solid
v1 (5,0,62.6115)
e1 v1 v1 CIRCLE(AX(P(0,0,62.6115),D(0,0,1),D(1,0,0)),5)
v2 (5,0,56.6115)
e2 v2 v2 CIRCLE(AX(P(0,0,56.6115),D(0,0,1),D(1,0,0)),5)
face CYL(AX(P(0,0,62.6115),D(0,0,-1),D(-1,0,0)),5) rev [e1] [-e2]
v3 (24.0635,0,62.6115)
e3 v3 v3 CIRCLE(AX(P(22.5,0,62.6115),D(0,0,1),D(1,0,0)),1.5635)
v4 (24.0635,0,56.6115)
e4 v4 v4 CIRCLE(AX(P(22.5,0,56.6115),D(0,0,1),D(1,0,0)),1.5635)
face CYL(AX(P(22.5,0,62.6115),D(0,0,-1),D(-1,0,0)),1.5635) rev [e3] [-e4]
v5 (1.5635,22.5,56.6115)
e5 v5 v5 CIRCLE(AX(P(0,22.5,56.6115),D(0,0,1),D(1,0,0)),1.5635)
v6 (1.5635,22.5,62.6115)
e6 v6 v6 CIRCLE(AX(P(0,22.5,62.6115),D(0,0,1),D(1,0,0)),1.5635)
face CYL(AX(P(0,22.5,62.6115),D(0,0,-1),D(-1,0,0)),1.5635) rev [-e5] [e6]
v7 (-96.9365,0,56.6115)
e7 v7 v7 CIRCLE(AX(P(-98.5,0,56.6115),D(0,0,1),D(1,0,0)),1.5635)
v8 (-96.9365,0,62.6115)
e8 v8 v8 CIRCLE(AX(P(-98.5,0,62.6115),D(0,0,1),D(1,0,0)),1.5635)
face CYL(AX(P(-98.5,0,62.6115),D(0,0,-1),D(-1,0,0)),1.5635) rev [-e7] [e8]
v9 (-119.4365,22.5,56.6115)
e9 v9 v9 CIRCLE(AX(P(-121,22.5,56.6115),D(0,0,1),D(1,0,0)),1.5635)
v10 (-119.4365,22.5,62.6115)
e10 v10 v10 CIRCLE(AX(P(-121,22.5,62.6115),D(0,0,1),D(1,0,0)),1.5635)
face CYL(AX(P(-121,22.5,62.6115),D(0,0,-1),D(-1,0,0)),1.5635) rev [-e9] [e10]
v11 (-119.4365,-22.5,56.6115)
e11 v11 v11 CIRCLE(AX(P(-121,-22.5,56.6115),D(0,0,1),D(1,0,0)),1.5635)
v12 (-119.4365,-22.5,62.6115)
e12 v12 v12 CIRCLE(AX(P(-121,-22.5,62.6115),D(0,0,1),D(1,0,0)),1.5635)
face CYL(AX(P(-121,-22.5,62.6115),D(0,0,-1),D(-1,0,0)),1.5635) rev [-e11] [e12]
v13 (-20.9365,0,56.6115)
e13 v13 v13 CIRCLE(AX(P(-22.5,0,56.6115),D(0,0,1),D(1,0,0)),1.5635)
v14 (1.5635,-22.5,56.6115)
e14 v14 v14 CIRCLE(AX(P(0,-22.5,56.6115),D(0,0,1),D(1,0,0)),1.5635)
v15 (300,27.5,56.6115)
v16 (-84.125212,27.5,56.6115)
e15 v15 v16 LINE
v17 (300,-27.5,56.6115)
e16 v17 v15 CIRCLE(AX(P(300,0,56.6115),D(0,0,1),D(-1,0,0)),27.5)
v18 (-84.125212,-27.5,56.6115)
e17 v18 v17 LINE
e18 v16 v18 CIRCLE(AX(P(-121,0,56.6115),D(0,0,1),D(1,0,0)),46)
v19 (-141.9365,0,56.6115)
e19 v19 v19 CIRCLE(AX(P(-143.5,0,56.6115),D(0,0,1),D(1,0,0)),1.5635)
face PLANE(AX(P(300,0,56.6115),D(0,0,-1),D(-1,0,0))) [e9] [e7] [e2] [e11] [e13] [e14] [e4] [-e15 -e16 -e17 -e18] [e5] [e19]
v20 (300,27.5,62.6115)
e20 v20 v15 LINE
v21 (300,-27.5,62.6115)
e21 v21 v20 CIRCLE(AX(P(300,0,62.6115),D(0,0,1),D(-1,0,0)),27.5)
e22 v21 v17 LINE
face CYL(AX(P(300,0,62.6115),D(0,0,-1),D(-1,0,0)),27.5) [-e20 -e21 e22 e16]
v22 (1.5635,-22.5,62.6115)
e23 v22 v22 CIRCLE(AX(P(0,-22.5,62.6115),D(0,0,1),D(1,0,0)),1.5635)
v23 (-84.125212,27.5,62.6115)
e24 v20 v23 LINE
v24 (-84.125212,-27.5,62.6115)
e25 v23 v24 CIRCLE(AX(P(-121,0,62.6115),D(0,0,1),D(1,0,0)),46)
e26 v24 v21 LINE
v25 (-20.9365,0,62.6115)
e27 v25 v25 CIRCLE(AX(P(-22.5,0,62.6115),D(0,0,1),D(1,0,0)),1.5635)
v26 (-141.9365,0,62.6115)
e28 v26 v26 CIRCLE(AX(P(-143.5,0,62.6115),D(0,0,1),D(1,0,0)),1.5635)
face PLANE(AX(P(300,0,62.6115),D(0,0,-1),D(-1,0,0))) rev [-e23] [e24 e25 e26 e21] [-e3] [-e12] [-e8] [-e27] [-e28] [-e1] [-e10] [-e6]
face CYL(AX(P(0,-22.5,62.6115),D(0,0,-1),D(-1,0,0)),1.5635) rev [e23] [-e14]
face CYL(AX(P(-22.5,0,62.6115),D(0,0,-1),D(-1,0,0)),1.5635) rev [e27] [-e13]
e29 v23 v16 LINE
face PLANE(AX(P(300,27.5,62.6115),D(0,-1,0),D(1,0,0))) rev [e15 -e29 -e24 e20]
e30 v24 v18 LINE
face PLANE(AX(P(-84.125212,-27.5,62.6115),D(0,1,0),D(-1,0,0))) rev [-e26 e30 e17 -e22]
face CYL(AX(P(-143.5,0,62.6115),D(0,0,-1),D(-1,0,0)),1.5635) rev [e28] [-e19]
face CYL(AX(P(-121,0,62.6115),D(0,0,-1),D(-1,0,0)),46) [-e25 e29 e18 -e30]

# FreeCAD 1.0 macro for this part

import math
import FreeCAD as App
import Part
import Sketcher

V = App.Vector

doc = App.newDocument("Part")
body = doc.addObject("PartDesign::Body", "Body")

# Sketch on XY plane
sketch1 = body.newObject("Sketcher::SketchObject", "Sketch")
sketch1.AttachmentSupport = (doc.getObject("XY_Plane"), [""])
sketch1.MapMode = "FlatFace"
sketch1.AttachmentOffset = App.Placement(V(0, 0, 56.6115), App.Rotation())
sketch1.addGeometry([
    Part.LineSegment(V(300, 27.5, 0), V(-84.1, 27.5, 0)),  # 0
    Part.ArcOfCircle(Part.Circle(V(-121, 0, 0), V(0, 0, 1), 46), math.radians(37), math.radians(323)),  # 1
    Part.LineSegment(V(-84.1, -27.5, 0), V(300, -27.5, 0)),  # 2
    Part.ArcOfCircle(Part.Circle(V(300, 0, 0), V(0, 0, 1), 27.5), math.radians(-90), math.radians(90)),  # 3
    Part.Circle(V(-121, -22.5, 0), V(0, 0, 1), 1.6),  # 4
    Part.Circle(V(0, -22.5, 0), V(0, 0, 1), 1.6),  # 5
    Part.Circle(V(-143.5, 0, 0), V(0, 0, 1), 1.6),  # 6
    Part.Circle(V(-98.5, 0, 0), V(0, 0, 1), 1.6),  # 7
    Part.Circle(V(-121, 22.5, 0), V(0, 0, 1), 1.6),  # 8
    Part.Circle(V(-22.5, 0, 0), V(0, 0, 1), 1.6),  # 9
    Part.Circle(V(0, 0, 0), V(0, 0, 1), 5),  # 10
    Part.Circle(V(22.5, 0, 0), V(0, 0, 1), 1.6),  # 11
    Part.Circle(V(0, 22.5, 0), V(0, 0, 1), 1.6),  # 12
], False)
sketch1.addConstraint([
    Sketcher.Constraint("Coincident", 0, 2, 1, 1),
    Sketcher.Constraint("Coincident", 1, 2, 2, 1),
    Sketcher.Constraint("Tangent", 2, 2, 3, 1),
    Sketcher.Constraint("Tangent", 3, 2, 0, 1),
    Sketcher.Constraint("Horizontal", 0),
    Sketcher.Constraint("Horizontal", 2),
    Sketcher.Constraint("Coincident", 10, 3, -1, 1),
    Sketcher.Constraint("Equal", 4, 5),
    Sketcher.Constraint("Equal", 5, 6),
    Sketcher.Constraint("Equal", 6, 7),
    Sketcher.Constraint("Equal", 7, 8),
    Sketcher.Constraint("Equal", 8, 9),
    Sketcher.Constraint("Equal", 9, 11),
    Sketcher.Constraint("Equal", 11, 12),
    Sketcher.Constraint("Symmetric", 9, 3, 11, 3, -1, 1),
    Sketcher.Constraint("Symmetric", 5, 3, 12, 3, -1, 1),
    Sketcher.Constraint("Symmetric", 4, 3, 8, 3, -1),
    Sketcher.Constraint("Symmetric", 0, 2, 1, 2, -1),
    Sketcher.Constraint("PointOnObject", 5, 3, -2),
    Sketcher.Constraint("PointOnObject", 6, 3, -1),
    Sketcher.Constraint("PointOnObject", 7, 3, -1),
    Sketcher.Constraint("PointOnObject", 9, 3, -1),
    Sketcher.Constraint("Horizontal", 4, 3, 5, 3),
    Sketcher.Constraint("Vertical", 1, 3, 4, 3),
    Sketcher.Constraint("Diameter", 10, 10.0),
    Sketcher.Constraint("Radius", 1, 46.0),
    Sketcher.Constraint("Radius", 3, 27.5),
    Sketcher.Constraint("Diameter", 4, 3.127),
    Sketcher.Constraint("DistanceX", 1, 3, -1, 1, 121.0),
    Sketcher.Constraint("DistanceX", -1, 1, 3, 3, 300.0),
    Sketcher.Constraint("DistanceX", 6, 3, 7, 3, 45.0),
    Sketcher.Constraint("DistanceY", 4, 3, 8, 3, 45.0),
    Sketcher.Constraint("DistanceX", 7, 3, 9, 3, 76.0),
    Sketcher.Constraint("DistanceX", 9, 3, 11, 3, 45.0),
])
pad1 = body.newObject("PartDesign::Pad", "Pad")
pad1.Profile = sketch1
pad1.Length = 6

doc.recompute()
